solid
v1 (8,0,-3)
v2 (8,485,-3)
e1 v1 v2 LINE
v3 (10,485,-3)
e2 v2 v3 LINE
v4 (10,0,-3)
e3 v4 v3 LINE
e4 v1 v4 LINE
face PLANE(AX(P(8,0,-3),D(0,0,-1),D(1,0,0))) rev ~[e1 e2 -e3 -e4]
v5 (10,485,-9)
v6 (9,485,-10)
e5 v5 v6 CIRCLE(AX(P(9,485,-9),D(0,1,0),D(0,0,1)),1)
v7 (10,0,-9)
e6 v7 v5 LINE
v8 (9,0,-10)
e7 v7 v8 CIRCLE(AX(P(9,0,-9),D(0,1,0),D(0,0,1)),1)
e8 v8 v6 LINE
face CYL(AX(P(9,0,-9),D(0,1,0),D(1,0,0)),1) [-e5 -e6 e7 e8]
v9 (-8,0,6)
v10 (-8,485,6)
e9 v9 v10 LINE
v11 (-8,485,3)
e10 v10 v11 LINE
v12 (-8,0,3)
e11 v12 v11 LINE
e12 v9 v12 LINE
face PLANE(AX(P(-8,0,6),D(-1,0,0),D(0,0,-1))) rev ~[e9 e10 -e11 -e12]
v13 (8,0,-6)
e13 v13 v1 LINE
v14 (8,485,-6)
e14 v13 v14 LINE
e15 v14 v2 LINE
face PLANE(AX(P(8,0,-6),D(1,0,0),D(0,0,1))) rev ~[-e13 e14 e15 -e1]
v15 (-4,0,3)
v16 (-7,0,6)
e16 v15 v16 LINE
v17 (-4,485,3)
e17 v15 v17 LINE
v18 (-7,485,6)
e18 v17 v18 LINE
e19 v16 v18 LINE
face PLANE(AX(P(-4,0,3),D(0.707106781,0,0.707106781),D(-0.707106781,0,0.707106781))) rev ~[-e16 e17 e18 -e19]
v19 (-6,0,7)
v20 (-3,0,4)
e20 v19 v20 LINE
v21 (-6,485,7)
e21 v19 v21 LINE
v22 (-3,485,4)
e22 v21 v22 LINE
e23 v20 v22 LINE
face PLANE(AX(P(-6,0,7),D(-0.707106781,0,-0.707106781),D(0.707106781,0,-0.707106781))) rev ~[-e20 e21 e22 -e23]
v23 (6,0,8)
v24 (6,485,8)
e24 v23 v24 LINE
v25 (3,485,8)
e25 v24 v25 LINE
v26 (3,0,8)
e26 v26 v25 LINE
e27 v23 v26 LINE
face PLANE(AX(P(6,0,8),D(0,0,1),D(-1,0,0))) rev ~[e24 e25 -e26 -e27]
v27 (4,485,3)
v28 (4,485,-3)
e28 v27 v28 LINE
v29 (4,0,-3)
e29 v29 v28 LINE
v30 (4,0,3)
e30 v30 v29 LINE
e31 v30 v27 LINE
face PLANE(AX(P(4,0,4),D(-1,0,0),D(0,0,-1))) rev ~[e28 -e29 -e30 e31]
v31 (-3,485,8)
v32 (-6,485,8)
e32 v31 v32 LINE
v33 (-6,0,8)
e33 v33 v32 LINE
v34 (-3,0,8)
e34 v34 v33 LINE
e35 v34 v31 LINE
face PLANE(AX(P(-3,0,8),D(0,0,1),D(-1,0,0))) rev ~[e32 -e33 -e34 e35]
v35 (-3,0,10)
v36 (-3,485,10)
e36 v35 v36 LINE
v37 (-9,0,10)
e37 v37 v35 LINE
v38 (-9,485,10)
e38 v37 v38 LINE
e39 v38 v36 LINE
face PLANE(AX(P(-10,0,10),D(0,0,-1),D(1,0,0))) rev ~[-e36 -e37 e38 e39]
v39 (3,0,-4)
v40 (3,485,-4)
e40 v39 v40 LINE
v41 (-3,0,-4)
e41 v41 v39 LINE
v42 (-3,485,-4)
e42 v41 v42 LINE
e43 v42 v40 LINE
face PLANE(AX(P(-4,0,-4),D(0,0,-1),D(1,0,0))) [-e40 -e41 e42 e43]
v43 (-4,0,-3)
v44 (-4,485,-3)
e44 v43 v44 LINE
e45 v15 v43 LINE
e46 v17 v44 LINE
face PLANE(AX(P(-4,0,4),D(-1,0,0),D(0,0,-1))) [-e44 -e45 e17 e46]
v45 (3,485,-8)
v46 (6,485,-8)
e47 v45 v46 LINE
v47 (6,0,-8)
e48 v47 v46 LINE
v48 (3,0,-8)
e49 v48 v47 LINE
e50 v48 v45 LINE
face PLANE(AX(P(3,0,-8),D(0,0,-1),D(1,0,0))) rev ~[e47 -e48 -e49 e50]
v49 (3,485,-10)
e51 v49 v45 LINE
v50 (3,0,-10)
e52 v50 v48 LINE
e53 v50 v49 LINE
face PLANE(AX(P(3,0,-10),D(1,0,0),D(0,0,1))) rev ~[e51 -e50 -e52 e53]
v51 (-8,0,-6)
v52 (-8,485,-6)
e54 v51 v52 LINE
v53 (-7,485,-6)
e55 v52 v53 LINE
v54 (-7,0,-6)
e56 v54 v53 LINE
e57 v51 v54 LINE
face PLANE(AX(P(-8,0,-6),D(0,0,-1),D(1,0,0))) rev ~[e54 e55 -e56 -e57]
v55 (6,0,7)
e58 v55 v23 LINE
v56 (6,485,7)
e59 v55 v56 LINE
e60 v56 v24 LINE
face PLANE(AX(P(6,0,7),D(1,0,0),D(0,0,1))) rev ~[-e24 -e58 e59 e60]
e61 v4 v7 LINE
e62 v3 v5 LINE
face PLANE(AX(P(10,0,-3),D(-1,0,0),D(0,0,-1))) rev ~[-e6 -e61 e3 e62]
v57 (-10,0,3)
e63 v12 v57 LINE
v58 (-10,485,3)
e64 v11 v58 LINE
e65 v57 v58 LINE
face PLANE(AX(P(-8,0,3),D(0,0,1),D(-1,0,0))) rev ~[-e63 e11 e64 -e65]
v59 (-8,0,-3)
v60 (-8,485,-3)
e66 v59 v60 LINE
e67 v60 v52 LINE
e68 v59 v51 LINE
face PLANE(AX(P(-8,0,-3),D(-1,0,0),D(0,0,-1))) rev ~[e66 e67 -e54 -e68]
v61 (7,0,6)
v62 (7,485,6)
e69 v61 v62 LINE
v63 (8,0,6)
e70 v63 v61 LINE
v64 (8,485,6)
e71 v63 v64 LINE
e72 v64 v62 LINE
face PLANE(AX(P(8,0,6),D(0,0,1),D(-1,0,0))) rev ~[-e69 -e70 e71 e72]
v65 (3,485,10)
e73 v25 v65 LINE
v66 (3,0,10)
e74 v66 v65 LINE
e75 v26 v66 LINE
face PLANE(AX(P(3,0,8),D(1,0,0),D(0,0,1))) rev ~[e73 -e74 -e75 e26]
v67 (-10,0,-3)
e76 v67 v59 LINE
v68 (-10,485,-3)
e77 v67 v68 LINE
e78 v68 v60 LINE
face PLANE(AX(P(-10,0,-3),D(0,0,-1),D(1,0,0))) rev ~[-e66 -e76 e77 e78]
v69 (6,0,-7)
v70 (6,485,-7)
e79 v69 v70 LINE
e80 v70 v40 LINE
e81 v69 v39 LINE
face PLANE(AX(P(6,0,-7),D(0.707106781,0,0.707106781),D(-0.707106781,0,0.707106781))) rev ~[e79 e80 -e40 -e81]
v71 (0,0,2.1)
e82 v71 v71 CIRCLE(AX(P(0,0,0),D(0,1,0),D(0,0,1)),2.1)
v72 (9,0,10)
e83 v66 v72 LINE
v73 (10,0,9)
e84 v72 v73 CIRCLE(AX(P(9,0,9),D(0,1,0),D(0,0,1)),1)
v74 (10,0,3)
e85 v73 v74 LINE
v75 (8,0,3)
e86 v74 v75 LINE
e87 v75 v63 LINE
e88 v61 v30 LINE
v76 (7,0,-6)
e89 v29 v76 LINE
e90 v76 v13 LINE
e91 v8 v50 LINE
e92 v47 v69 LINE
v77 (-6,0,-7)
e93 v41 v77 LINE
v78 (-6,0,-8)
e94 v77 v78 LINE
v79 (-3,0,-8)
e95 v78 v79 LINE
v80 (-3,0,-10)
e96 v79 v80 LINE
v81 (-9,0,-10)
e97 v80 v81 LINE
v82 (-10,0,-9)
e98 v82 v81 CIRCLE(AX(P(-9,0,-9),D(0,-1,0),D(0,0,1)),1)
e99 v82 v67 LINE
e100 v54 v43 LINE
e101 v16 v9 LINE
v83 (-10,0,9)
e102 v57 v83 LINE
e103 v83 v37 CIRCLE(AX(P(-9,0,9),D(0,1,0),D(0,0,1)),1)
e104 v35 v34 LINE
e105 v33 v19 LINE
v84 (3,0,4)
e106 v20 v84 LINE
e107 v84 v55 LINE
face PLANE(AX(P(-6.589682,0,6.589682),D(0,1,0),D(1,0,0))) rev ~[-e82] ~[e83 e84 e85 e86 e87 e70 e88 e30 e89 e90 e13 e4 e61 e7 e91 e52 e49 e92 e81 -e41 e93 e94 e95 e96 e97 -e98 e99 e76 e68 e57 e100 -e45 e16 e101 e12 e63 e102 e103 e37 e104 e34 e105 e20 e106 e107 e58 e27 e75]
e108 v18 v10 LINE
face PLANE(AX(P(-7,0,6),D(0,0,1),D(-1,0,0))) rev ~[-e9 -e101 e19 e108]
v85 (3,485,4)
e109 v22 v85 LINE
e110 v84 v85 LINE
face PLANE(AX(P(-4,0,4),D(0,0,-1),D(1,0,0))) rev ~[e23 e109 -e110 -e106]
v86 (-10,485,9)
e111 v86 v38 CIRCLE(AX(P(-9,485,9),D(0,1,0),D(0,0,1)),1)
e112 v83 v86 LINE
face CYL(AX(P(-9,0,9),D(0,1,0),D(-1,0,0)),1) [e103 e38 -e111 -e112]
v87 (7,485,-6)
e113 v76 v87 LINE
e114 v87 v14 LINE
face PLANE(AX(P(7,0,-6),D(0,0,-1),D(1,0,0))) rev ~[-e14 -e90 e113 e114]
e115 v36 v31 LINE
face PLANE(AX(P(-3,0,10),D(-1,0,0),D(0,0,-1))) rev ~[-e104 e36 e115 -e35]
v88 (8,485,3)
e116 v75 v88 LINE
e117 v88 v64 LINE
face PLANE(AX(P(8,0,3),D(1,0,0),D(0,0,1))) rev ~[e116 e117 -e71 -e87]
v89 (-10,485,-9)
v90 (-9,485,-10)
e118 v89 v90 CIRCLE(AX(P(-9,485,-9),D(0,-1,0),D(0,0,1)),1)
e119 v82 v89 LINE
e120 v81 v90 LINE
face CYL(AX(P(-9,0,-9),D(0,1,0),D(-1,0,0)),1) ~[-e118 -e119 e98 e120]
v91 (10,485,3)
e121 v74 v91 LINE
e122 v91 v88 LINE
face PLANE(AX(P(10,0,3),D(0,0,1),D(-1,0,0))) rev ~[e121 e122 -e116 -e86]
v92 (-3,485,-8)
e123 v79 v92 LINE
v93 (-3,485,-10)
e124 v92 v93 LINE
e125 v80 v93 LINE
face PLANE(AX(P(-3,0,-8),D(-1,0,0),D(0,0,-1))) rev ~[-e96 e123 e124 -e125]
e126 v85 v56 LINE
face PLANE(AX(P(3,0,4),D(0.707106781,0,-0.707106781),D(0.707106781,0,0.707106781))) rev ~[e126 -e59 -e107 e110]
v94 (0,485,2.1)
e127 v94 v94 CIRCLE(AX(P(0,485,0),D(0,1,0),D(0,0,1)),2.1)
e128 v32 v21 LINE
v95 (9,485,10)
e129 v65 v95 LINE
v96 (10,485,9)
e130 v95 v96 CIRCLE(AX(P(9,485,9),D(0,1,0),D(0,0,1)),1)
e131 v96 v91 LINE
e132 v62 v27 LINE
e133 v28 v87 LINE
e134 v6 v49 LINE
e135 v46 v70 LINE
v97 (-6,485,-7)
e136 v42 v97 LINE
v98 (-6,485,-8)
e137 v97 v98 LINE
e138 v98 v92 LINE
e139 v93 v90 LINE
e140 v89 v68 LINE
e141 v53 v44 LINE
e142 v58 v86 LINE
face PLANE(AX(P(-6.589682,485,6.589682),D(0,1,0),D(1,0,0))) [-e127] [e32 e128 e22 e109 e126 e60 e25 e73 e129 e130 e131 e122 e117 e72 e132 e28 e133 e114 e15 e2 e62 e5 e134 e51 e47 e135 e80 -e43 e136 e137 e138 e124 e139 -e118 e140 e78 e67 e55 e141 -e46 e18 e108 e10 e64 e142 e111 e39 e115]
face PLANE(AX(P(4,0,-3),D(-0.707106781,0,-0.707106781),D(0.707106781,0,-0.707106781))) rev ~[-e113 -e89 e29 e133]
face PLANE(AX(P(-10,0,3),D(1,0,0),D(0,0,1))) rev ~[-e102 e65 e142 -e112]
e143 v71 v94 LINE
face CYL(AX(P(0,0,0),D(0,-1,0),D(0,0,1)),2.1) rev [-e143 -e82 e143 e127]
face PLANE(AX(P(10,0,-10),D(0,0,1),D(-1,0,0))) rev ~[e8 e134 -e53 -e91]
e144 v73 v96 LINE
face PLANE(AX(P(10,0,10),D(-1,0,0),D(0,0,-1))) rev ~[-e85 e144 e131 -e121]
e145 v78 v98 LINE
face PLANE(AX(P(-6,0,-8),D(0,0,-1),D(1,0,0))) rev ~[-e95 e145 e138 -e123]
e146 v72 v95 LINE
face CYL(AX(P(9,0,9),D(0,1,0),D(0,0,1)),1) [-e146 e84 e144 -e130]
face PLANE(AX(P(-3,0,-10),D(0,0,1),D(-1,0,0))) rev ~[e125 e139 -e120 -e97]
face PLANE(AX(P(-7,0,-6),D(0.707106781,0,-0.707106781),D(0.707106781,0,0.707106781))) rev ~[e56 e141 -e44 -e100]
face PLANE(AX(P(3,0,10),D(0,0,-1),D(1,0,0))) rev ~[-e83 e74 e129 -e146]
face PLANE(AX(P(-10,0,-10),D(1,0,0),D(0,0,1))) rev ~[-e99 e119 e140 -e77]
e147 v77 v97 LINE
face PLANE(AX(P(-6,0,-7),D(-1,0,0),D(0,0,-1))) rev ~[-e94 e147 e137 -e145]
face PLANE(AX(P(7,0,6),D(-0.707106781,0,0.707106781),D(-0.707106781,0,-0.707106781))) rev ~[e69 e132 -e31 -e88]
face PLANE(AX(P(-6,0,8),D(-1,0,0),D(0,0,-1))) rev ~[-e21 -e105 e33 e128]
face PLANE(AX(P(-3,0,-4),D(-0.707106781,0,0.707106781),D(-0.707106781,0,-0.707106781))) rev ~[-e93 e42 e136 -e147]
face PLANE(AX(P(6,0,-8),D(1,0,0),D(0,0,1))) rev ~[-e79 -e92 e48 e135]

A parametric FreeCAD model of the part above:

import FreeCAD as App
import Part
import Sketcher

V = App.Vector


def edges_at(feature, points):
    """Names of the edges that pass closest to the given points."""
    edges = feature.Shape.Edges
    near = lambda p: min(range(len(edges)), key=lambda i: edges[i].distToShape(Part.Vertex(*p))[0])
    return sorted({f"Edge{near(p) + 1}" for p in points})

doc = App.newDocument("Part")
params = doc.addObject("Spreadsheet::Sheet", "Params")
for row, (alias, value) in enumerate([
    ("sketch1_diameter", "4.2 mm"),
    ("sketch1_width", "2 mm"),
    ("sketch1_width2", "1 mm"),
    ("sketch1_width3", "7 mm"),
    ("sketch1_width4", "3 mm"),
    ("pad1_length", "485 mm"),
    ("fillet_radius", "1 mm"),
], start=1):
    params.set(f"A{row}", alias)
    params.set(f"B{row}", "=" + value)
    params.setAlias(f"B{row}", alias)

body = doc.addObject("PartDesign::Body", "Body")

sketch1 = body.newObject("Sketcher::SketchObject", "Sketch")
sketch1.AttachmentSupport = (doc.getObject("XZ_Plane"), [""])
sketch1.MapMode = "FlatFace"
sketch1.addGeometry([
    Part.LineSegment(V(-10, -10, 0), V(-10, -3, 0)),
    Part.LineSegment(V(-10, -3, 0), V(-8, -3, 0)),
    Part.LineSegment(V(-8, -3, 0), V(-8, -6, 0)),
    Part.LineSegment(V(-8, -6, 0), V(-7, -6, 0)),
    Part.LineSegment(V(-7, -6, 0), V(-4, -3, 0)),
    Part.LineSegment(V(-4, -3, 0), V(-4, 3, 0)),
    Part.LineSegment(V(-4, 3, 0), V(-7, 6, 0)),
    Part.LineSegment(V(-7, 6, 0), V(-8, 6, 0)),
    Part.LineSegment(V(-8, 6, 0), V(-8, 3, 0)),
    Part.LineSegment(V(-8, 3, 0), V(-10, 3, 0)),
    Part.LineSegment(V(-10, 3, 0), V(-10, 10, 0)),
    Part.LineSegment(V(-10, 10, 0), V(-3, 10, 0)),
    Part.LineSegment(V(-3, 10, 0), V(-3, 8, 0)),
    Part.LineSegment(V(-3, 8, 0), V(-6, 8, 0)),
    Part.LineSegment(V(-6, 8, 0), V(-6, 7, 0)),
    Part.LineSegment(V(-6, 7, 0), V(-3, 4, 0)),
    Part.LineSegment(V(-3, 4, 0), V(3, 4, 0)),
    Part.LineSegment(V(3, 4, 0), V(6, 7, 0)),
    Part.LineSegment(V(6, 7, 0), V(6, 8, 0)),
    Part.LineSegment(V(6, 8, 0), V(3, 8, 0)),
    Part.LineSegment(V(3, 8, 0), V(3, 10, 0)),
    Part.LineSegment(V(3, 10, 0), V(10, 10, 0)),
    Part.LineSegment(V(10, 10, 0), V(10, 3, 0)),
    Part.LineSegment(V(10, 3, 0), V(8, 3, 0)),
    Part.LineSegment(V(8, 3, 0), V(8, 6, 0)),
    Part.LineSegment(V(8, 6, 0), V(7, 6, 0)),
    Part.LineSegment(V(7, 6, 0), V(4, 3, 0)),
    Part.LineSegment(V(4, 3, 0), V(4, -3, 0)),
    Part.LineSegment(V(4, -3, 0), V(7, -6, 0)),
    Part.LineSegment(V(7, -6, 0), V(8, -6, 0)),
    Part.LineSegment(V(8, -6, 0), V(8, -3, 0)),
    Part.LineSegment(V(8, -3, 0), V(10, -3, 0)),
    Part.LineSegment(V(10, -3, 0), V(10, -10, 0)),
    Part.LineSegment(V(10, -10, 0), V(3, -10, 0)),
    Part.LineSegment(V(3, -10, 0), V(3, -8, 0)),
    Part.LineSegment(V(3, -8, 0), V(6, -8, 0)),
    Part.LineSegment(V(6, -8, 0), V(6, -7, 0)),
    Part.LineSegment(V(6, -7, 0), V(3, -4, 0)),
    Part.LineSegment(V(3, -4, 0), V(-3, -4, 0)),
    Part.LineSegment(V(-3, -4, 0), V(-6, -7, 0)),
    Part.LineSegment(V(-6, -7, 0), V(-6, -8, 0)),
    Part.LineSegment(V(-6, -8, 0), V(-3, -8, 0)),
    Part.LineSegment(V(-3, -8, 0), V(-3, -10, 0)),
    Part.LineSegment(V(-3, -10, 0), V(-10, -10, 0)),
    Part.Circle(V(0, 0, 0), V(0, 0, 1), 2.1),
], False)
sketch1.addConstraint([
    Sketcher.Constraint("Coincident", 0, 2, 1, 1),
    Sketcher.Constraint("Coincident", 1, 2, 2, 1),
    Sketcher.Constraint("Coincident", 2, 2, 3, 1),
    Sketcher.Constraint("Coincident", 3, 2, 4, 1),
    Sketcher.Constraint("Coincident", 4, 2, 5, 1),
    Sketcher.Constraint("Coincident", 5, 2, 6, 1),
    Sketcher.Constraint("Coincident", 6, 2, 7, 1),
    Sketcher.Constraint("Coincident", 7, 2, 8, 1),
    Sketcher.Constraint("Coincident", 8, 2, 9, 1),
    Sketcher.Constraint("Coincident", 9, 2, 10, 1),
    Sketcher.Constraint("Coincident", 10, 2, 11, 1),
    Sketcher.Constraint("Coincident", 11, 2, 12, 1),
    Sketcher.Constraint("Coincident", 12, 2, 13, 1),
    Sketcher.Constraint("Coincident", 13, 2, 14, 1),
    Sketcher.Constraint("Coincident", 14, 2, 15, 1),
    Sketcher.Constraint("Coincident", 15, 2, 16, 1),
    Sketcher.Constraint("Coincident", 16, 2, 17, 1),
    Sketcher.Constraint("Coincident", 17, 2, 18, 1),
    Sketcher.Constraint("Coincident", 18, 2, 19, 1),
    Sketcher.Constraint("Coincident", 19, 2, 20, 1),
    Sketcher.Constraint("Coincident", 20, 2, 21, 1),
    Sketcher.Constraint("Coincident", 21, 2, 22, 1),
    Sketcher.Constraint("Coincident", 22, 2, 23, 1),
    Sketcher.Constraint("Coincident", 23, 2, 24, 1),
    Sketcher.Constraint("Coincident", 24, 2, 25, 1),
    Sketcher.Constraint("Coincident", 25, 2, 26, 1),
    Sketcher.Constraint("Coincident", 26, 2, 27, 1),
    Sketcher.Constraint("Coincident", 27, 2, 28, 1),
    Sketcher.Constraint("Coincident", 28, 2, 29, 1),
    Sketcher.Constraint("Coincident", 29, 2, 30, 1),
    Sketcher.Constraint("Coincident", 30, 2, 31, 1),
    Sketcher.Constraint("Coincident", 31, 2, 32, 1),
    Sketcher.Constraint("Coincident", 32, 2, 33, 1),
    Sketcher.Constraint("Coincident", 33, 2, 34, 1),
    Sketcher.Constraint("Coincident", 34, 2, 35, 1),
    Sketcher.Constraint("Coincident", 35, 2, 36, 1),
    Sketcher.Constraint("Coincident", 36, 2, 37, 1),
    Sketcher.Constraint("Coincident", 37, 2, 38, 1),
    Sketcher.Constraint("Coincident", 38, 2, 39, 1),
    Sketcher.Constraint("Coincident", 39, 2, 40, 1),
    Sketcher.Constraint("Coincident", 40, 2, 41, 1),
    Sketcher.Constraint("Coincident", 41, 2, 42, 1),
    Sketcher.Constraint("Coincident", 42, 2, 43, 1),
    Sketcher.Constraint("Coincident", 43, 2, 0, 1),
    Sketcher.Constraint("Vertical", 0),
    Sketcher.Constraint("Horizontal", 1),
    Sketcher.Constraint("Vertical", 2),
    Sketcher.Constraint("Horizontal", 3),
    Sketcher.Constraint("Vertical", 5),
    Sketcher.Constraint("Horizontal", 7),
    Sketcher.Constraint("Vertical", 8),
    Sketcher.Constraint("Horizontal", 9),
    Sketcher.Constraint("Vertical", 10),
    Sketcher.Constraint("Horizontal", 11),
    Sketcher.Constraint("Vertical", 12),
    Sketcher.Constraint("Horizontal", 13),
    Sketcher.Constraint("Vertical", 14),
    Sketcher.Constraint("Horizontal", 16),
    Sketcher.Constraint("Vertical", 18),
    Sketcher.Constraint("Horizontal", 19),
    Sketcher.Constraint("Vertical", 20),
    Sketcher.Constraint("Horizontal", 21),
    Sketcher.Constraint("Vertical", 22),
    Sketcher.Constraint("Horizontal", 23),
    Sketcher.Constraint("Vertical", 24),
    Sketcher.Constraint("Horizontal", 25),
    Sketcher.Constraint("Vertical", 27),
    Sketcher.Constraint("Horizontal", 29),
    Sketcher.Constraint("Vertical", 30),
    Sketcher.Constraint("Horizontal", 31),
    Sketcher.Constraint("Vertical", 32),
    Sketcher.Constraint("Horizontal", 33),
    Sketcher.Constraint("Vertical", 34),
    Sketcher.Constraint("Horizontal", 35),
    Sketcher.Constraint("Vertical", 36),
    Sketcher.Constraint("Horizontal", 38),
    Sketcher.Constraint("Vertical", 40),
    Sketcher.Constraint("Horizontal", 41),
    Sketcher.Constraint("Vertical", 42),
    Sketcher.Constraint("Horizontal", 43),
    Sketcher.Constraint("Coincident", 44, 3, -1, 1),
    Sketcher.Constraint("Symmetric", 0, 2, 22, 2, -1, 1),
    Sketcher.Constraint("Symmetric", 2, 2, 24, 2, -1, 1),
    Sketcher.Constraint("Symmetric", 4, 2, 26, 2, -1, 1),
    Sketcher.Constraint("Symmetric", 6, 2, 28, 2, -1, 1),
    Sketcher.Constraint("Symmetric", 8, 2, 30, 2, -1, 1),
    Sketcher.Constraint("Symmetric", 10, 2, 32, 2, -1, 1),
    Sketcher.Constraint("Symmetric", 12, 2, 34, 2, -1, 1),
    Sketcher.Constraint("Symmetric", 14, 2, 36, 2, -1, 1),
    Sketcher.Constraint("Symmetric", 15, 2, 37, 2, -1, 1),
    Sketcher.Constraint("Symmetric", 17, 2, 39, 2, -1, 1),
    Sketcher.Constraint("Symmetric", 19, 2, 41, 2, -1, 1),
    Sketcher.Constraint("Symmetric", 14, 2, 17, 2, -2),
    Sketcher.Constraint("Symmetric", 12, 2, 19, 2, -2),
    Sketcher.Constraint("Symmetric", 10, 2, 21, 2, -2),
    Sketcher.Constraint("Symmetric", 8, 2, 23, 2, -2),
    Sketcher.Constraint("Symmetric", 6, 2, 25, 2, -2),
    Sketcher.Constraint("Perpendicular", 4, 6),
    Sketcher.Constraint("Parallel", 6, 15),
    Sketcher.Constraint("Perpendicular", 15, 17),
    Sketcher.Constraint("Parallel", 17, 26),
    Sketcher.Constraint("Perpendicular", 26, 28),
    Sketcher.Constraint("Perpendicular", 37, 39),
    Sketcher.Constraint("Horizontal", 1, 2, 4, 2),
    Sketcher.Constraint("Horizontal", 5, 2, 8, 2),
    Sketcher.Constraint("Horizontal", 33, 2, 42, 2),
    Sketcher.Constraint("Vertical", 12, 2, 15, 2),
    Sketcher.Constraint("Equal", 43, 0),
    Sketcher.Constraint("Equal", 41, 2),
    Sketcher.Constraint("Equal", 38, 5),
    Sketcher.Constraint("Equal", 31, 12),
    Sketcher.Constraint("Equal", 29, 14),
    Sketcher.Constraint("Diameter", 44, 4.2),
    Sketcher.Constraint("DistanceX", 1, 1, 1, 2, 2.0),
    Sketcher.Constraint("DistanceX", 3, 1, 3, 2, 1.0),
    Sketcher.Constraint("DistanceX", 11, 1, 11, 2, 7.0),
    Sketcher.Constraint("DistanceX", 13, 2, 13, 1, 3.0),
    Sketcher.Constraint("DistanceX", 16, 1, 16, 2, 6.0),
])
sketch1.setExpression("Constraints[112]", "Params.sketch1_diameter")
sketch1.setExpression("Constraints[113]", "Params.sketch1_width")
sketch1.setExpression("Constraints[114]", "Params.sketch1_width2")
sketch1.setExpression("Constraints[115]", "Params.sketch1_width3")
sketch1.setExpression("Constraints[116]", "Params.sketch1_width4")
pad1 = body.newObject("PartDesign::Pad", "Pad")
pad1.Profile = sketch1
pad1.setExpression("Length", "Params.pad1_length")
pad1.Reversed = True
doc.recompute()

fillet = body.newObject("PartDesign::Fillet", "Fillet")
fillet.Base = (pad1, edges_at(pad1, [
    (-10, 242.5, 10),
    (-10, 242.5, -10),
    (10, 242.5, -10),
    (10, 242.5, 10),
]))
fillet.setExpression("Radius", "Params.fillet_radius")

doc.recompute()
